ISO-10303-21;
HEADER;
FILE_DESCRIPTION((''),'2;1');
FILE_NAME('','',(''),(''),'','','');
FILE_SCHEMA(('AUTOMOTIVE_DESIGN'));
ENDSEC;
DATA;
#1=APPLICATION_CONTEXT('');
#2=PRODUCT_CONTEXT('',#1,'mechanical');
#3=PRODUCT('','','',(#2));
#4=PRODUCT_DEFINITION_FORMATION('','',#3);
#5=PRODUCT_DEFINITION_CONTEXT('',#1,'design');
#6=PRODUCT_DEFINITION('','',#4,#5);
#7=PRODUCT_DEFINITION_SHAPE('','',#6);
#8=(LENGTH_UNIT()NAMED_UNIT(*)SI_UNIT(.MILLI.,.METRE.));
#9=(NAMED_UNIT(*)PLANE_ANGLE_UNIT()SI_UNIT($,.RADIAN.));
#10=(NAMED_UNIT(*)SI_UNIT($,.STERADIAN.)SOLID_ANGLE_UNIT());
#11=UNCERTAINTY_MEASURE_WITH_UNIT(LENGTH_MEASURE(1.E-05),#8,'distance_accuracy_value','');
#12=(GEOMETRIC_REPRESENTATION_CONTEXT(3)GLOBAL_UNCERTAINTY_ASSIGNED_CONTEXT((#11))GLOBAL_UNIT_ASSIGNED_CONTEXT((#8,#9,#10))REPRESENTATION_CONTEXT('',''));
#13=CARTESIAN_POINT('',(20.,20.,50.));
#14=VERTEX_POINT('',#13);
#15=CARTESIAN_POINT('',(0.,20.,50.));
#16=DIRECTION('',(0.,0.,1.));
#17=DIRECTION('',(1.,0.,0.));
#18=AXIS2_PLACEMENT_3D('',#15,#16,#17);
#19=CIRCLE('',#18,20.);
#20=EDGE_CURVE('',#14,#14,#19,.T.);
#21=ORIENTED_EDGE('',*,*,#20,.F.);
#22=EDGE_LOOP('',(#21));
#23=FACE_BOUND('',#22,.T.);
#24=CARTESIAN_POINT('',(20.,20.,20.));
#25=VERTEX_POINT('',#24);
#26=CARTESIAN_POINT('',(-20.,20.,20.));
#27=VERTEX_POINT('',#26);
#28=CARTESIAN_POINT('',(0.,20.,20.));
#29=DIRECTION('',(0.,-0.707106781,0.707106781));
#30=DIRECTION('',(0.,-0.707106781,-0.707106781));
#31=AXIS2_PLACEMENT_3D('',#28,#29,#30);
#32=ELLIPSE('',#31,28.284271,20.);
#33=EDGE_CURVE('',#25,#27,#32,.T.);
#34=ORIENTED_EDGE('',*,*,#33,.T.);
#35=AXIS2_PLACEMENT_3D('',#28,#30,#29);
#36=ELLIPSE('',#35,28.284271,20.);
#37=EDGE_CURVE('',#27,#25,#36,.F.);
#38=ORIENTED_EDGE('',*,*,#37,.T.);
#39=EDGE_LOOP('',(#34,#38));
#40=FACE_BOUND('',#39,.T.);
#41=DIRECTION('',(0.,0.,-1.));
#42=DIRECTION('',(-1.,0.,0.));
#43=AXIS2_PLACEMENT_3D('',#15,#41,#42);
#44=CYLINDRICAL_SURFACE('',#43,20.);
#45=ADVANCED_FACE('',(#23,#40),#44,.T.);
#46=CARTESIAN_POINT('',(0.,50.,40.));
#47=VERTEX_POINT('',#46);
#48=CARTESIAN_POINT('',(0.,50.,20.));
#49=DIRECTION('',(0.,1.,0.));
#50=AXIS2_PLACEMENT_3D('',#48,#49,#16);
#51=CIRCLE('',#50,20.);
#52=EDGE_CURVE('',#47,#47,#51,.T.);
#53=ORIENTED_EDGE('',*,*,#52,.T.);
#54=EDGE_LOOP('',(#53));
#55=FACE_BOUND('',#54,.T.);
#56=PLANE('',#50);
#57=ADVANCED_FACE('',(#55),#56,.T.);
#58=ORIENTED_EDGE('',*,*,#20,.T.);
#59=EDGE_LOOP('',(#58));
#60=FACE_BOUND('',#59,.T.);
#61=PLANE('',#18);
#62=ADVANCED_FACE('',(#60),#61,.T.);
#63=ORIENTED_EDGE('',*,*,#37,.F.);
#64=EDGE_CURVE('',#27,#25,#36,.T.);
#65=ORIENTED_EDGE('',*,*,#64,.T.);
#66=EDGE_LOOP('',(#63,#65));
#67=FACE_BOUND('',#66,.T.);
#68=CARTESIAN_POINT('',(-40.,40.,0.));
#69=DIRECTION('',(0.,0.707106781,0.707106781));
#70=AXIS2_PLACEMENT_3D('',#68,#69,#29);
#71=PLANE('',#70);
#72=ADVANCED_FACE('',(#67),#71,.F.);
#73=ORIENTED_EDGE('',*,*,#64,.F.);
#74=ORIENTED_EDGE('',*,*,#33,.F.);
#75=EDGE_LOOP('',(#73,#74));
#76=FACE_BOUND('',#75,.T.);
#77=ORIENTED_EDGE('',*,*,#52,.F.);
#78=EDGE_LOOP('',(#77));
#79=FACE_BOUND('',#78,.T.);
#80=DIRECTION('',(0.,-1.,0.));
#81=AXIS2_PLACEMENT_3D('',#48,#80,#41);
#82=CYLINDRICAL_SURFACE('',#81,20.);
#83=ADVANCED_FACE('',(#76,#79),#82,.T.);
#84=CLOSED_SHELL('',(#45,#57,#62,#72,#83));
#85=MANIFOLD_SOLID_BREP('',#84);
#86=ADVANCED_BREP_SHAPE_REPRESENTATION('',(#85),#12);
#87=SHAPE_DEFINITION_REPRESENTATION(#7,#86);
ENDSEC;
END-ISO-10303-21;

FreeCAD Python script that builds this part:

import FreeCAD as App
import Part
import Sketcher
Q = App.Units.Quantity


def add_polygon(sketch, points):
    """Adds a closed chain of lines whose ends are joined by coincident constraints."""
    first, n = sketch.GeometryCount, len(points)
    for a, b in zip(points, points[1:] + points[:1]):
        sketch.addGeometry(Part.LineSegment(App.Vector(*a, 0), App.Vector(*b, 0)), False)
    for i in range(n):
        sketch.addConstraint(Sketcher.Constraint("Coincident", first + i, 2, first + (i + 1) % n, 1))

doc = App.newDocument("Part")
params = doc.addObject("Spreadsheet::Sheet", "Params")
for row, (alias, value) in enumerate([
    ("sketch1_diameter", "40 mm"),
    ("pad1_length", "50 mm"),
    ("sketch2_diameter", "40 mm"),
    ("pad2_length", "50 mm"),
    ("pocket1_length", "40 mm"),
    ("pocket2_length", "40 mm"),
], start=1):
    params.set(f"A{row}", alias)
    params.set(f"B{row}", "=" + value)
    params.setAlias(f"B{row}", alias)

body = doc.addObject("PartDesign::Body", "Body")

sketch1 = doc.addObject("Sketcher::SketchObject", "Sketch")
body.addObject(sketch1)
sketch1.AttachmentSupport = (doc.XZ_Plane, [""])
sketch1.MapMode = "FlatFace"
sketch1.addGeometry(Part.Circle(App.Vector(0, 20, 0), App.Vector(0, 0, 1), 20), False)
sketch1.addConstraint(Sketcher.Constraint("PointOnObject", 0, 3, -2))
sketch1.addConstraint(Sketcher.Constraint("Diameter", 0, 40.0))
sketch1.addConstraint(Sketcher.Constraint("DistanceY", -1, 1, 0, 3, 20.0))
sketch1.setExpression("Constraints[1]", "Params.sketch1_diameter")
pad1 = doc.addObject("PartDesign::Pad", "Pad")
body.addObject(pad1)
pad1.Profile = sketch1
pad1.setExpression("Length", "Params.pad1_length")
pad1.Reversed = True

sketch2 = doc.addObject("Sketcher::SketchObject", "Sketch001")
body.addObject(sketch2)
sketch2.AttachmentSupport = (doc.XY_Plane, [""])
sketch2.MapMode = "FlatFace"
sketch2.addGeometry(Part.Circle(App.Vector(0, 20, 0), App.Vector(0, 0, 1), 20), False)
sketch2.addConstraint(Sketcher.Constraint("PointOnObject", 0, 3, -2))
sketch2.addConstraint(Sketcher.Constraint("Diameter", 0, 40.0))
sketch2.addConstraint(Sketcher.Constraint("DistanceY", -1, 1, 0, 3, 20.0))
sketch2.setExpression("Constraints[1]", "Params.sketch2_diameter")
pad2 = doc.addObject("PartDesign::Pad", "Pad001")
body.addObject(pad2)
pad2.Profile = sketch2
pad2.setExpression("Length", "Params.pad2_length")

sketch3 = doc.addObject("Sketcher::SketchObject", "Sketch002")
body.addObject(sketch3)
sketch3.AttachmentSupport = (doc.YZ_Plane, [""])
sketch3.MapMode = "FlatFace"
add_polygon(sketch3, [(40, 0), (0, 40), (-17, 40), (-17, -11)])
sketch3.addConstraint(Sketcher.Constraint("Horizontal", 1))
sketch3.addConstraint(Sketcher.Constraint("Vertical", 2))
sketch3.addConstraint(Sketcher.Constraint("PointOnObject", 0, 2, -2))
sketch3.addConstraint(Sketcher.Constraint("PointOnObject", 3, 2, -1))
sketch3.addConstraint(Sketcher.Constraint("Angle", 0, Q("135 deg")))
sketch3.addConstraint(Sketcher.Constraint("DistanceY", -1, 1, 0, 2, 40.0))
sketch3.addConstraint(Sketcher.Constraint("Distance", 3, 57.932041))
sketch3.addConstraint(Sketcher.Constraint("DistanceX", 1, 2, 1, 1, 16.797303))
pocket1 = doc.addObject("PartDesign::Pocket", "Pocket")
body.addObject(pocket1)
pocket1.Profile = sketch3
pocket1.setExpression("Length", "Params.pocket1_length")

sketch4 = doc.addObject("Sketcher::SketchObject", "Sketch003")
body.addObject(sketch4)
sketch4.AttachmentSupport = (doc.YZ_Plane, [""])
sketch4.MapMode = "FlatFace"
add_polygon(sketch4, [(0, 40), (40, 0), (-9, -21), (-18, 43)])
sketch4.addConstraint(Sketcher.Constraint("PointOnObject", 0, 2, -1))
sketch4.addConstraint(Sketcher.Constraint("PointOnObject", 3, 2, -2))
sketch4.addConstraint(Sketcher.Constraint("Angle", 0, Q("-45 deg")))
sketch4.addConstraint(Sketcher.Constraint("DistanceX", -1, 1, 0, 2, 40.0))
sketch4.addConstraint(Sketcher.Constraint("Distance", 2, 64.38238))
sketch4.addConstraint(Sketcher.Constraint("Distance", 1, 53.351073))
sketch4.addConstraint(Sketcher.Constraint("Distance", 3, 18.396406))
sketch4.addConstraint(Sketcher.Constraint("DistanceX", 1, 2, -1, 1, 9.087927))
pocket2 = doc.addObject("PartDesign::Pocket", "Pocket001")
body.addObject(pocket2)
pocket2.Profile = sketch4
pocket2.setExpression("Length", "Params.pocket2_length")
pocket2.Reversed = True

doc.recompute()
